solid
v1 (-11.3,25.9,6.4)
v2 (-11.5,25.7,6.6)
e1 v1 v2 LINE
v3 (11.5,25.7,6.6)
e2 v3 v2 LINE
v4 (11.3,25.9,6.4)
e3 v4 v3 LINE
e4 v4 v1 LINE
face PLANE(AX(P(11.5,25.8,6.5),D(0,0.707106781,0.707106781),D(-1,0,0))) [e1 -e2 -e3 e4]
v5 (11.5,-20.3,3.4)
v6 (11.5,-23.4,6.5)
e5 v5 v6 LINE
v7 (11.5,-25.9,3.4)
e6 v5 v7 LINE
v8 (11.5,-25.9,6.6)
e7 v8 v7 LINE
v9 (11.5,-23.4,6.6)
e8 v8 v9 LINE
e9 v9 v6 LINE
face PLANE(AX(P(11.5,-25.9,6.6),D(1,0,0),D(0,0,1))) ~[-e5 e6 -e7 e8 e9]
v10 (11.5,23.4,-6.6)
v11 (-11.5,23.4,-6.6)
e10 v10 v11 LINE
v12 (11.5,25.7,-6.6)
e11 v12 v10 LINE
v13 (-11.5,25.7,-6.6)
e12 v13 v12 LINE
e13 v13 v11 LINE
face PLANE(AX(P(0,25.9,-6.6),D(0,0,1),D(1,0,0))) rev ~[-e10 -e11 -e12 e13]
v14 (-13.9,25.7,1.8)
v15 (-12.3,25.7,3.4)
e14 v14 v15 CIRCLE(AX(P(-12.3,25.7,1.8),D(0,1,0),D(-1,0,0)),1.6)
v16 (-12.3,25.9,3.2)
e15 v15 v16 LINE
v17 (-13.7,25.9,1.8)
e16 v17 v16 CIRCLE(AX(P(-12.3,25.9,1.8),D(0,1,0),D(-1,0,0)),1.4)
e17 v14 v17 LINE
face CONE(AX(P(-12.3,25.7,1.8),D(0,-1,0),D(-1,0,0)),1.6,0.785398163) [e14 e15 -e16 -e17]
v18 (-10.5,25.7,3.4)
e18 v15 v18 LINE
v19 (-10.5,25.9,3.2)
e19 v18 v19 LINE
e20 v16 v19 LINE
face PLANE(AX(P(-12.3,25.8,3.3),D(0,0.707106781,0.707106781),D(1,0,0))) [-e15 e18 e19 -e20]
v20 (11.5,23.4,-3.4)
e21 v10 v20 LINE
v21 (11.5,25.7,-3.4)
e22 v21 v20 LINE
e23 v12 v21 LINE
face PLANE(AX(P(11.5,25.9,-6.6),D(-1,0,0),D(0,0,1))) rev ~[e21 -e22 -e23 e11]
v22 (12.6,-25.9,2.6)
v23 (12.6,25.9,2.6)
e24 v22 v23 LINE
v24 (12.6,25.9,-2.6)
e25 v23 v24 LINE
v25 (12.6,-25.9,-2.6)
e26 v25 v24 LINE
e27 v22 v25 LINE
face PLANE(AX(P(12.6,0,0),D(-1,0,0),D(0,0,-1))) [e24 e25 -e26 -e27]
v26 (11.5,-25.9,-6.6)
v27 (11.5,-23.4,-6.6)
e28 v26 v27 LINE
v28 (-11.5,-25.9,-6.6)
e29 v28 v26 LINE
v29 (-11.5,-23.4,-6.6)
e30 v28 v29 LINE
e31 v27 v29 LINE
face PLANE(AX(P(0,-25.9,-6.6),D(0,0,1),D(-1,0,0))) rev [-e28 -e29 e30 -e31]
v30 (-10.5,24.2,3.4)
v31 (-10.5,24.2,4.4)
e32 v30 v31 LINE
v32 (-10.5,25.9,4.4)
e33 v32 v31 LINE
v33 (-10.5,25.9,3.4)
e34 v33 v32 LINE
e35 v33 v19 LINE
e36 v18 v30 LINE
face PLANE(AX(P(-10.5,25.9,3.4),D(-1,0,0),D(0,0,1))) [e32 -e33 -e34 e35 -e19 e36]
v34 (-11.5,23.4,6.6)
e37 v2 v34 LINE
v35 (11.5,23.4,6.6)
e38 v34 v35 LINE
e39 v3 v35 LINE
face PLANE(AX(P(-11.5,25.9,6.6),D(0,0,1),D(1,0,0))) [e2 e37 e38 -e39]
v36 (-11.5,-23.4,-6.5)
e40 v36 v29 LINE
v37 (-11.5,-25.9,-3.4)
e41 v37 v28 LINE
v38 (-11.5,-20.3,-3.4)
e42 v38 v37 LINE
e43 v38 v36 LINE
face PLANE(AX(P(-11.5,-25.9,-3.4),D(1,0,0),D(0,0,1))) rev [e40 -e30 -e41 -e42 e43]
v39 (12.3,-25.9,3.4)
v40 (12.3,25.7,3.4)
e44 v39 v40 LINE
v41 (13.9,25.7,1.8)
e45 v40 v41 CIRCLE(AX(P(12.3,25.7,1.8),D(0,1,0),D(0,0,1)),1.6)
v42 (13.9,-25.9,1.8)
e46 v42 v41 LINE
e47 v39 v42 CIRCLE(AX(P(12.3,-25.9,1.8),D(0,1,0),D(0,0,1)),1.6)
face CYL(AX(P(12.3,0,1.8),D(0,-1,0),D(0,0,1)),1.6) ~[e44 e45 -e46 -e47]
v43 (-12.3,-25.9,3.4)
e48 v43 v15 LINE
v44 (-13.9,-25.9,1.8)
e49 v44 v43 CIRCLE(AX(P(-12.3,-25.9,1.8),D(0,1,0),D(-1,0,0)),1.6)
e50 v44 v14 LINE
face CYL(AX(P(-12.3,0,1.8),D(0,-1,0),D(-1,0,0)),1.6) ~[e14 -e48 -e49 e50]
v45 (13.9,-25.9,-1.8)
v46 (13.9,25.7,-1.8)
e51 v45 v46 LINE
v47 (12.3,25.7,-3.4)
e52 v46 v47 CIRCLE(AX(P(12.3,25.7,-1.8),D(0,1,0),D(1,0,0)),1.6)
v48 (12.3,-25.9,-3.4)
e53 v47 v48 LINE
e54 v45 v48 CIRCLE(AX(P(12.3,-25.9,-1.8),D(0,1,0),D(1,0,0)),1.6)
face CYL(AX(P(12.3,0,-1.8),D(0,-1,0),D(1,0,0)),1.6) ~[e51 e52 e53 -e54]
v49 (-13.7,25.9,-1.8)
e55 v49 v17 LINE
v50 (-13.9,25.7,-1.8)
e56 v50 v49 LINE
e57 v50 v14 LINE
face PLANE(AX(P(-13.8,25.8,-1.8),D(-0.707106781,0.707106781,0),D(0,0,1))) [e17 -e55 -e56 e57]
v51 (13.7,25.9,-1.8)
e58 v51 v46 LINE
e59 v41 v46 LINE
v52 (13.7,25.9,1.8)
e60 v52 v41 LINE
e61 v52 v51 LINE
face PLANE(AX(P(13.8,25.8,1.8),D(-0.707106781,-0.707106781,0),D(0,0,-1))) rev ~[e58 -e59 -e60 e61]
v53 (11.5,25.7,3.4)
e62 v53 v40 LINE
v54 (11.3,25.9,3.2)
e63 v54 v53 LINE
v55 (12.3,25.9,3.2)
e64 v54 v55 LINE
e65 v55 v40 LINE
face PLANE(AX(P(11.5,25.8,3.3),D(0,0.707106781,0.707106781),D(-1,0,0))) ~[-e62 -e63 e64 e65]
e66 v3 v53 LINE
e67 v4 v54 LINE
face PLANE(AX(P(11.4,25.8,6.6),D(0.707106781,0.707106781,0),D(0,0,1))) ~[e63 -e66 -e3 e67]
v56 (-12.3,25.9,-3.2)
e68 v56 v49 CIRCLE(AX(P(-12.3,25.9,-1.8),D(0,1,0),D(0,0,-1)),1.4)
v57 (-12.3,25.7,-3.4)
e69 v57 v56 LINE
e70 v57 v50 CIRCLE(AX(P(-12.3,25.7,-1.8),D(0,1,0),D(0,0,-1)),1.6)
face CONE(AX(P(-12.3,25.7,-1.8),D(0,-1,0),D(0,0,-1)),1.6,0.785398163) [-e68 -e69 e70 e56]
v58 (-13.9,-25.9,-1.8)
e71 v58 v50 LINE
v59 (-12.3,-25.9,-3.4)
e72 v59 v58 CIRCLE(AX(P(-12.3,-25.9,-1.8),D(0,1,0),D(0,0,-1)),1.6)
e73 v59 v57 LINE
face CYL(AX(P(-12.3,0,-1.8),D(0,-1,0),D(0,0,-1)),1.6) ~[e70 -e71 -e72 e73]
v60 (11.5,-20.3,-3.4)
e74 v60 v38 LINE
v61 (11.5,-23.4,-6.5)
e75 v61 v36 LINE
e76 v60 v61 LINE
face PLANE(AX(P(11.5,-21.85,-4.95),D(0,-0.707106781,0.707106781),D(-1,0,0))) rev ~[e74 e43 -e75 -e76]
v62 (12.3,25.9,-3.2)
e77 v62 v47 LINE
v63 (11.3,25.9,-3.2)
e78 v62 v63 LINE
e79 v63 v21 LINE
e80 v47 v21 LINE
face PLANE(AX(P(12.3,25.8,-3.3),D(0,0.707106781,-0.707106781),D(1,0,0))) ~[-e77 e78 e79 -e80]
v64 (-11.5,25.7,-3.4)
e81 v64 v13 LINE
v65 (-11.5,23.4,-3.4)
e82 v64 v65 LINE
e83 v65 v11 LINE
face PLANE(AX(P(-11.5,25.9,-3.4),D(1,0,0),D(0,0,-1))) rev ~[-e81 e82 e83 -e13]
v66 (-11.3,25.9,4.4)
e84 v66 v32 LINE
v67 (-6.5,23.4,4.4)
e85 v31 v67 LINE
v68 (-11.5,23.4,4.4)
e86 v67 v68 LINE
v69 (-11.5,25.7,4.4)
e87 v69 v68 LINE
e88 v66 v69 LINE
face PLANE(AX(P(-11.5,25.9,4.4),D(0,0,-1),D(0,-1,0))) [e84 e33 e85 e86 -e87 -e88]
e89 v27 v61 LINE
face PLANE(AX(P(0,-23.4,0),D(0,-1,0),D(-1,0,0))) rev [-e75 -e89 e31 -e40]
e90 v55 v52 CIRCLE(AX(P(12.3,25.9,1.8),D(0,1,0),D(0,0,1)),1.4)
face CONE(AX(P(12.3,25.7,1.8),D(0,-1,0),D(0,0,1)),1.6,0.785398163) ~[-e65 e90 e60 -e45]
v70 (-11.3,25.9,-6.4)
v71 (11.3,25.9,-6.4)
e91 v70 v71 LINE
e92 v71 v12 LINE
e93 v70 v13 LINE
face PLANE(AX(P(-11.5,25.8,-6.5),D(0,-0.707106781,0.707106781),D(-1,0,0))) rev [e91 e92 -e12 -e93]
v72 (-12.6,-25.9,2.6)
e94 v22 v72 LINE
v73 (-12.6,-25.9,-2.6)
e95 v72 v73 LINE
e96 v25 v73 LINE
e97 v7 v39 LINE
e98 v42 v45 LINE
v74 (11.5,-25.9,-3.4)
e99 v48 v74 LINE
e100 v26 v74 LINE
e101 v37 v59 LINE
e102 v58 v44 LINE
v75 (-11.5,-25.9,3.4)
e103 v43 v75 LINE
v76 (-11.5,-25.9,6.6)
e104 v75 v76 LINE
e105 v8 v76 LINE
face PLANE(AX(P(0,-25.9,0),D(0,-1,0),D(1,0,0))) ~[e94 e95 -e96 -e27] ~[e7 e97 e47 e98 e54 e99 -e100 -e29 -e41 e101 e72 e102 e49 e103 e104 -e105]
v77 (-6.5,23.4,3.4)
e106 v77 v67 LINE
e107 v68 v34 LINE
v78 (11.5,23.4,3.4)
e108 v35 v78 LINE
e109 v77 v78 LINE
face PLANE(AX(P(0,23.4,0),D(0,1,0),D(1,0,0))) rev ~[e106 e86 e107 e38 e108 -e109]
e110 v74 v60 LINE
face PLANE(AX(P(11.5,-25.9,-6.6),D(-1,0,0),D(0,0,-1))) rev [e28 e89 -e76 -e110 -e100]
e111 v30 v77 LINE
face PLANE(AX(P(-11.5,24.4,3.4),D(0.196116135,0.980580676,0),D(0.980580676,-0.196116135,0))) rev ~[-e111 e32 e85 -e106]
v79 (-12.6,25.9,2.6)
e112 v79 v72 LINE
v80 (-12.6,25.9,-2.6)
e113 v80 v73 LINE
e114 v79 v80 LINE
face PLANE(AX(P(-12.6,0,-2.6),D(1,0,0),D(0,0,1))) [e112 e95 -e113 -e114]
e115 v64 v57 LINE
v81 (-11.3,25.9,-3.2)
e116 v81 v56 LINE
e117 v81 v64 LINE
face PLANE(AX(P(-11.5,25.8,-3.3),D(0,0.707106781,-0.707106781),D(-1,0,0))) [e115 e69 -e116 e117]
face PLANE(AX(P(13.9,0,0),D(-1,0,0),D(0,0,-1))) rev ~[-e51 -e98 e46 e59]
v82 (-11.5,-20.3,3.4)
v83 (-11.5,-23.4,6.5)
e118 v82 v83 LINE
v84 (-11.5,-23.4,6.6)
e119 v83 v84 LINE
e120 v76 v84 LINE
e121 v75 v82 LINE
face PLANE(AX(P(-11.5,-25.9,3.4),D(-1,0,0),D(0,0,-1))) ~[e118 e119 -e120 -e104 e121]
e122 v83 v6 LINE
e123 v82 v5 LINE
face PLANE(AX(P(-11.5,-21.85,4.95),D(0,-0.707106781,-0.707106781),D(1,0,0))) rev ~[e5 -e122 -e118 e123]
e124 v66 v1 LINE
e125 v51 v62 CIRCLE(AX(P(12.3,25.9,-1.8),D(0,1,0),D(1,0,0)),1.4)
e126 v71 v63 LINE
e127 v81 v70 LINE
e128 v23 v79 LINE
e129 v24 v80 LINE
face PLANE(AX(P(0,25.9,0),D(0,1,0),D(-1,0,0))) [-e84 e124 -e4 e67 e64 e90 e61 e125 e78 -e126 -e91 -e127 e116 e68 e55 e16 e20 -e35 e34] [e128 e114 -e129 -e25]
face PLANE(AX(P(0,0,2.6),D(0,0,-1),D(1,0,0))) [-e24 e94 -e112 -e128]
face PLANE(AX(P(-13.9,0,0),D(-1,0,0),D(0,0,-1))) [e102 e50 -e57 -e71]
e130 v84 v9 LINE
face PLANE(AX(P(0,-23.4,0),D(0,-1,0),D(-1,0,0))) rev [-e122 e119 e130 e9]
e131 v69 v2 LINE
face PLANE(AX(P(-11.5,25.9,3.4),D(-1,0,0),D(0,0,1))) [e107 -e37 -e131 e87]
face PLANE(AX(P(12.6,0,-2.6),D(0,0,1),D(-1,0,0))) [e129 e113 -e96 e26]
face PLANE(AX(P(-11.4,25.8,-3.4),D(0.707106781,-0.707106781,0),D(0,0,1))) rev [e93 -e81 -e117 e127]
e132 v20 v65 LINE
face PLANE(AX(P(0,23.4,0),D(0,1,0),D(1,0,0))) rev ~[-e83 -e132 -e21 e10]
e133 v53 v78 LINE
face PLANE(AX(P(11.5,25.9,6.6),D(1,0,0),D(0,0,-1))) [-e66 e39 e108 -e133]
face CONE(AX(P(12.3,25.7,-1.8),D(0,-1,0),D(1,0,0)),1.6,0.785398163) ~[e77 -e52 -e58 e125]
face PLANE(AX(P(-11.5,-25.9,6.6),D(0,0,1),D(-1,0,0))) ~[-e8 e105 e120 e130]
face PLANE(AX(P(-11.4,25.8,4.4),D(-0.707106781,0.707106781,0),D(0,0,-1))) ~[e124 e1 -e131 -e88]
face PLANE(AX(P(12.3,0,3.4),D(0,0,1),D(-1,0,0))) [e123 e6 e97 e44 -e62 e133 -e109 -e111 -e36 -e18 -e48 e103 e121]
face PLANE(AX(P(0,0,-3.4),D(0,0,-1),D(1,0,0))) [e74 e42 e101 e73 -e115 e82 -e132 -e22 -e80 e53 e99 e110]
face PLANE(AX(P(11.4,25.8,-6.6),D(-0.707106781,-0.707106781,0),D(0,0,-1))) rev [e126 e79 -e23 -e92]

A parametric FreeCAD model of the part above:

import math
import FreeCAD as App
import Part
import Sketcher


def edges_at(feature, points):
    """Names of the edges that pass closest to the given points."""
    edges = feature.Shape.Edges
    near = lambda p: min(range(len(edges)), key=lambda i: edges[i].distToShape(Part.Vertex(*p))[0])
    return sorted({f"Edge{near(p) + 1}" for p in points})


def add_polygon(sketch, points):
    """Adds a closed chain of lines whose ends are joined by coincident constraints."""
    first, n = sketch.GeometryCount, len(points)
    for a, b in zip(points, points[1:] + points[:1]):
        sketch.addGeometry(Part.LineSegment(App.Vector(*a, 0), App.Vector(*b, 0)), False)
    for i in range(n):
        sketch.addConstraint(Sketcher.Constraint("Coincident", first + i, 2, first + (i + 1) % n, 1))

doc = App.newDocument("Part")
body = doc.addObject("PartDesign::Body", "Body")

sketch1 = body.newObject("Sketcher::SketchObject", "Sketch")
sketch1.AttachmentSupport = (doc.getObject("XZ_Plane"), [""])
sketch1.MapMode = "FlatFace"
sketch1.addGeometry(Part.LineSegment(App.Vector(12.3, -3.4, 0), App.Vector(-12.3, -3.4, 0)), False)
sketch1.addGeometry(Part.ArcOfCircle(Part.Circle(App.Vector(-12.3, -1.8, 0), App.Vector(0, 0, 1), 1.6), math.radians(180), math.radians(270)), False)
sketch1.addGeometry(Part.LineSegment(App.Vector(-13.9, -1.8, 0), App.Vector(-13.9, 1.8, 0)), False)
sketch1.addGeometry(Part.ArcOfCircle(Part.Circle(App.Vector(-12.3, 1.8, 0), App.Vector(0, 0, 1), 1.6), math.radians(90), math.radians(180)), False)
sketch1.addGeometry(Part.LineSegment(App.Vector(-12.3, 3.4, 0), App.Vector(12.3, 3.4, 0)), False)
sketch1.addGeometry(Part.ArcOfCircle(Part.Circle(App.Vector(12.3, 1.8, 0), App.Vector(0, 0, 1), 1.6), math.radians(0), math.radians(90)), False)
sketch1.addGeometry(Part.LineSegment(App.Vector(13.9, 1.8, 0), App.Vector(13.9, -1.8, 0)), False)
sketch1.addGeometry(Part.ArcOfCircle(Part.Circle(App.Vector(12.3, -1.8, 0), App.Vector(0, 0, 1), 1.6), math.radians(-90), math.radians(0)), False)
add_polygon(sketch1, [(12.6, -2.6), (12.6, 2.6), (-12.6, 2.6), (-12.6, -2.6)])
sketch1.addConstraint([
    Sketcher.Constraint("Tangent", 0, 2, 1, 2),
    Sketcher.Constraint("Tangent", 1, 1, 2, 1),
    Sketcher.Constraint("Tangent", 2, 2, 3, 2),
    Sketcher.Constraint("Tangent", 3, 1, 4, 1),
    Sketcher.Constraint("Tangent", 4, 2, 5, 2),
    Sketcher.Constraint("Tangent", 5, 1, 6, 1),
    Sketcher.Constraint("Tangent", 6, 2, 7, 2),
    Sketcher.Constraint("Tangent", 7, 1, 0, 1),
    Sketcher.Constraint("Horizontal", 0),
    Sketcher.Constraint("Vertical", 2),
    Sketcher.Constraint("Horizontal", 4),
    Sketcher.Constraint("Vertical", 6),
    Sketcher.Constraint("Vertical", 8),
    Sketcher.Constraint("Horizontal", 9),
    Sketcher.Constraint("Vertical", 10),
    Sketcher.Constraint("Horizontal", 11),
    Sketcher.Constraint("Equal", 1, 3),
    Sketcher.Constraint("Equal", 3, 5),
    Sketcher.Constraint("Equal", 5, 7),
    Sketcher.Constraint("Symmetric", 1, 3, 5, 3, -1, 1),
    Sketcher.Constraint("Symmetric", 8, 2, 10, 2, -1, 1),
    Sketcher.Constraint("Radius", 1, 1.6),
    Sketcher.Constraint("DistanceX", 9, 2, 9, 1, 25.2),
    Sketcher.Constraint("DistanceY", 8, 1, 8, 2, 5.2),
    Sketcher.Constraint("DistanceY", 0, 2, 3, 3, 5.2),
    Sketcher.Constraint("DistanceX", 8, 2, 5, 1, 1.3),
])
pad1 = body.newObject("PartDesign::Pad", "Pad")
pad1.Profile = sketch1
pad1.Length = 25.9
pad1.Reversed = True

sketch2 = body.newObject("Sketcher::SketchObject", "Sketch001")
sketch2.AttachmentSupport = (doc.getObject("XZ_Plane"), [""])
sketch2.MapMode = "FlatFace"
sketch2.AttachmentOffset = App.Placement(App.Vector(0, 0, -25.9), App.Rotation())
add_polygon(sketch2, [(11.5, -6.6), (-11.5, -6.6), (-11.5, -3.4), (11.5, -3.4)])
add_polygon(sketch2, [(-11.5, 6.6), (11.5, 6.6), (11.5, 3.4), (-11.5, 3.4)])
sketch2.addConstraint([
    Sketcher.Constraint("Horizontal", 0),
    Sketcher.Constraint("Vertical", 1),
    Sketcher.Constraint("Horizontal", 2),
    Sketcher.Constraint("Vertical", 3),
    Sketcher.Constraint("Horizontal", 4),
    Sketcher.Constraint("Vertical", 5),
    Sketcher.Constraint("Horizontal", 6),
    Sketcher.Constraint("Vertical", 7),
    Sketcher.Constraint("Symmetric", 0, 2, 4, 2, -1, 1),
    Sketcher.Constraint("Symmetric", 2, 2, 6, 2, -1, 1),
    Sketcher.Constraint("Vertical", 3, 2, 4, 2),
    Sketcher.Constraint("DistanceX", 0, 2, 0, 1, 23.0),
    Sketcher.Constraint("DistanceY", 1, 1, 1, 2, 3.2),
    Sketcher.Constraint("DistanceY", 2, 2, 4, 2, 10.0),
])
pad2 = body.newObject("PartDesign::Pad", "Pad001")
pad2.Profile = sketch2
pad2.Length = 2.5
doc.recompute()

mirrored = body.newObject("PartDesign::Mirrored", "Mirrored")
mirrored.Originals = [pad1, pad2]
mirrored.MirrorPlane = (doc.getObject("XZ_Plane"), [""])
body.Tip = mirrored
doc.recompute()

chamfer = body.newObject("PartDesign::Chamfer", "Chamfer")
chamfer.Base = (mirrored, edges_at(mirrored, [(0, -23.4, 3.4), (0, -23.4, -3.4)]))
chamfer.Size = 3.1

sketch3 = body.newObject("Sketcher::SketchObject", "Sketch002")
sketch3.AttachmentSupport = (doc.getObject("XY_Plane"), [""])
sketch3.MapMode = "FlatFace"
sketch3.AttachmentOffset = App.Placement(App.Vector(0, 0, 3.4), App.Rotation())
add_polygon(sketch3, [(-6.5, 23.4), (-11.5, 24.4), (-11.5, 23.4)])
sketch3.addConstraint([
    Sketcher.Constraint("Vertical", 1),
    Sketcher.Constraint("Horizontal", 2),
    Sketcher.Constraint("DistanceX", 2, 1, 2, 2, 5.0),
    Sketcher.Constraint("DistanceY", 1, 2, 1, 1, 1.0),
    Sketcher.Constraint("DistanceX", 0, 2, -1, 1, 11.5),
    Sketcher.Constraint("DistanceY", -1, 1, 0, 2, 24.4),
])
pocket1 = body.newObject("PartDesign::Pocket", "Pocket")
pocket1.Profile = sketch3
pocket1.Length = 1
pocket1.Reversed = True

sketch4 = body.newObject("Sketcher::SketchObject", "Sketch003")
sketch4.AttachmentSupport = (doc.getObject("YZ_Plane"), [""])
sketch4.MapMode = "FlatFace"
sketch4.AttachmentOffset = App.Placement(App.Vector(0, 0, -11.5), App.Rotation())
add_polygon(sketch4, [(25.9, 3.4), (23.4, 3.4), (23.4, 4.4), (25.9, 4.4)])
sketch4.addConstraint([
    Sketcher.Constraint("Horizontal", 0),
    Sketcher.Constraint("Vertical", 1),
    Sketcher.Constraint("Horizontal", 2),
    Sketcher.Constraint("Vertical", 3),
    Sketcher.Constraint("DistanceY", 1, 1, 1, 2, 1.0),
    Sketcher.Constraint("DistanceX", 0, 2, 0, 1, 2.5),
    Sketcher.Constraint("DistanceX", -1, 1, 0, 2, 23.4),
    Sketcher.Constraint("DistanceY", -1, 1, 0, 2, 3.4),
])
pocket2 = body.newObject("PartDesign::Pocket", "Pocket001")
pocket2.Profile = sketch4
pocket2.Length = 1
pocket2.Reversed = True
doc.recompute()

chamfer2 = body.newObject("PartDesign::Chamfer", "Chamfer001")
chamfer2.Base = (pocket2, edges_at(pocket2, [
    (0, 25.9, 6.6),
    (11.5, 25.9, 5),
    (13.431, 25.9, 2.931),
    (13.9, 25.9, 0),
    (13.431, 25.9, -2.931),
    (11.9, 25.9, -3.4),
    (11.9, 25.9, 3.4),
    (11.5, 25.9, -5),
    (0, 25.9, -6.6),
    (-11.5, 25.9, -5),
    (-11.9, 25.9, -3.4),
    (-13.431, 25.9, -2.931),
    (-13.9, 25.9, 0),
    (-13.431, 25.9, 2.931),
    (-11.4, 25.9, 3.4),
    (-11.5, 25.9, 5.5),
]))
chamfer2.Size = 0.2

doc.recompute()
